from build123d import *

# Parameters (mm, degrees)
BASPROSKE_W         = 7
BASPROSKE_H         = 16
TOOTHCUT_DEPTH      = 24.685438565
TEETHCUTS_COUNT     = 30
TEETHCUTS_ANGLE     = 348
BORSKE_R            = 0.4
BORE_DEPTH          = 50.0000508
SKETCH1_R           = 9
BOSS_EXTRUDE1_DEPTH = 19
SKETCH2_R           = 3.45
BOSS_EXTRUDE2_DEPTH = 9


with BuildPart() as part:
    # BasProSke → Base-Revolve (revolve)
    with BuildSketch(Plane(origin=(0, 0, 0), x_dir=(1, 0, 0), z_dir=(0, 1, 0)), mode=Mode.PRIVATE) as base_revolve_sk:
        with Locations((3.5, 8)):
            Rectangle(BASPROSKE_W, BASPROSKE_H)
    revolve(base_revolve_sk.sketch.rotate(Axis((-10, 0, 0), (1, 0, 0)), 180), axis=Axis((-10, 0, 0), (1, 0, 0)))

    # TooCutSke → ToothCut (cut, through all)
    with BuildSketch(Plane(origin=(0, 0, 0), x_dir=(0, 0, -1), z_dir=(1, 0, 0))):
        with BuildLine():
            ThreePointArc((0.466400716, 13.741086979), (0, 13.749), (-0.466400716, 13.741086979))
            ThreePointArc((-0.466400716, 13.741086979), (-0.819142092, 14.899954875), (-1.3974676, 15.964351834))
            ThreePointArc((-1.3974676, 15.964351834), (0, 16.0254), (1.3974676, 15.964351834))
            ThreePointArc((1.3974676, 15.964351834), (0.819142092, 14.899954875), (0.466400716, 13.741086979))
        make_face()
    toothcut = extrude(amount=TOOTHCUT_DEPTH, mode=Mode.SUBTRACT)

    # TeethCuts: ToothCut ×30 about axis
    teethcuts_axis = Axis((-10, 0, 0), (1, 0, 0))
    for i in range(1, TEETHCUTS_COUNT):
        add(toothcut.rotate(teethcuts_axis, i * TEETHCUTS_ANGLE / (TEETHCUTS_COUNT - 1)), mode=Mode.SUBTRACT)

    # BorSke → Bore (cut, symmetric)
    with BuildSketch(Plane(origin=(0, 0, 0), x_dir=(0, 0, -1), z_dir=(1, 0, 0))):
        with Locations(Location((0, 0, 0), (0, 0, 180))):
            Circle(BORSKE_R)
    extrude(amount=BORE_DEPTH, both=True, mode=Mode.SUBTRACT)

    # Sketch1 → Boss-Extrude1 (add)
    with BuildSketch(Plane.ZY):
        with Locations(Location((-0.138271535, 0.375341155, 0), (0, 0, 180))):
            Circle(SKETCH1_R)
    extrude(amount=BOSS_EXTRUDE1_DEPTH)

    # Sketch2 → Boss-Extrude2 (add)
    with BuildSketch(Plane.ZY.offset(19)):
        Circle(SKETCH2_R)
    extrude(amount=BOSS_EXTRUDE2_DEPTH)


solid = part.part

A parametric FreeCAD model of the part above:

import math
import FreeCAD as App
import Part
import Sketcher


def add_polygon(sketch, points):
    """Adds a closed chain of lines whose ends are joined by coincident constraints."""
    first, n = sketch.GeometryCount, len(points)
    for a, b in zip(points, points[1:] + points[:1]):
        sketch.addGeometry(Part.LineSegment(App.Vector(*a, 0), App.Vector(*b, 0)), False)
    for i in range(n):
        sketch.addConstraint(Sketcher.Constraint("Coincident", first + i, 2, first + (i + 1) % n, 1))

doc = App.newDocument("Part")
body = doc.addObject("PartDesign::Body", "Body")

sketch1 = body.newObject("Sketcher::SketchObject", "Sketch")
sketch1.AttachmentSupport = (doc.getObject("XZ_Plane"), [""])
sketch1.MapMode = "FlatFace"
add_polygon(sketch1, [(0, -16), (0, 0), (7, 0), (7, -16)])
sketch1.addConstraint([
    Sketcher.Constraint("Vertical", 0),
    Sketcher.Constraint("Horizontal", 1),
    Sketcher.Constraint("Vertical", 2),
    Sketcher.Constraint("Horizontal", 3),
    Sketcher.Constraint("Coincident", 0, 2, -1, 1),
    Sketcher.Constraint("DistanceX", 1, 1, 1, 2, 7.0),
    Sketcher.Constraint("DistanceY", 0, 1, 0, 2, 16.0),
])
revolution = body.newObject("PartDesign::Revolution", "Revolution")
revolution.Profile = sketch1
revolution.ReferenceAxis = (sketch1, ["H_Axis"])
revolution.Angle = 360

sketch2 = body.newObject("Sketcher::SketchObject", "Sketch001")
sketch2.AttachmentSupport = (doc.getObject("YZ_Plane"), [""])
sketch2.MapMode = "FlatFace"
sketch2.addGeometry([
    Part.ArcOfCircle(Part.Circle(App.Vector(0, 0, 0), App.Vector(0, 0, 1), 13.749), math.radians(-1.94399), math.radians(1.94399)),
    Part.ArcOfCircle(Part.Circle(App.Vector(12.582284, -6.353435, 0), App.Vector(0, 0, 1), 6), math.radians(55.689458), math.radians(78.864269)),
    Part.ArcOfCircle(Part.Circle(App.Vector(0, 0, 0), App.Vector(0, 0, 1), 16.0254), math.radians(-5.002735), math.radians(5.002735)),
    Part.ArcOfCircle(Part.Circle(App.Vector(12.582284, 6.353435, 0), App.Vector(0, 0, 1), 6), math.radians(-78.864269), math.radians(-55.689458)),
], False)
sketch2.addConstraint([
    Sketcher.Constraint("Coincident", 0, 1, 1, 2),
    Sketcher.Constraint("Coincident", 1, 1, 2, 1),
    Sketcher.Constraint("Coincident", 2, 2, 3, 2),
    Sketcher.Constraint("Coincident", 3, 1, 0, 2),
    Sketcher.Constraint("Coincident", 0, 3, -1, 1),
    Sketcher.Constraint("Coincident", 2, 3, -1, 1),
    Sketcher.Constraint("Equal", 1, 3),
    Sketcher.Constraint("Symmetric", 1, 3, 3, 3, -1),
    Sketcher.Constraint("Radius", 1, 6.0),
    Sketcher.Constraint("Radius", 0, 13.749),
    Sketcher.Constraint("Radius", 2, 16.0254),
    Sketcher.Constraint("DistanceY", 0, 1, -1, 1, 0.466401),
    Sketcher.Constraint("DistanceX", -1, 1, 1, 1, 15.964352),
])
pocket1 = body.newObject("PartDesign::Pocket", "Pocket")
pocket1.Profile = sketch2
pocket1.Type = "ThroughAll"
pocket1.Reversed = True
doc.recompute()

polarpattern = body.newObject("PartDesign::PolarPattern", "PolarPattern")
polarpattern.Originals = [pocket1]
polarpattern.Axis = (doc.getObject("X_Axis"), [""])
polarpattern.Angle = 360
polarpattern.Occurrences = 30
body.Tip = polarpattern

sketch3 = body.newObject("Sketcher::SketchObject", "Sketch002")
sketch3.AttachmentSupport = (doc.getObject("YZ_Plane"), [""])
sketch3.MapMode = "FlatFace"
sketch3.addGeometry(Part.Circle(App.Vector(0, 0, 0), App.Vector(0, 0, 1), 0.4), False)
sketch3.addConstraint([
    Sketcher.Constraint("Coincident", 0, 3, -1, 1),
    Sketcher.Constraint("Diameter", 0, 0.8),
])
pocket2 = body.newObject("PartDesign::Pocket", "Pocket001")
pocket2.Profile = sketch3
pocket2.Length = 100.000102
pocket2.Midplane = True

sketch4 = body.newObject("Sketcher::SketchObject", "Sketch003")
sketch4.AttachmentSupport = (doc.getObject("YZ_Plane"), [""])
sketch4.MapMode = "FlatFace"
sketch4.addGeometry(Part.Circle(App.Vector(0.375341, -0.138272, 0), App.Vector(0, 0, 1), 9), False)
sketch4.addConstraint([
    Sketcher.Constraint("Diameter", 0, 18.0),
    Sketcher.Constraint("DistanceX", -1, 1, 0, 3, 0.375341),
    Sketcher.Constraint("DistanceY", 0, 3, -1, 1, 0.138272),
])
pad1 = body.newObject("PartDesign::Pad", "Pad")
pad1.Profile = sketch4
pad1.Length = 19
pad1.Reversed = True

sketch5 = body.newObject("Sketcher::SketchObject", "Sketch004")
sketch5.AttachmentSupport = (doc.getObject("YZ_Plane"), [""])
sketch5.MapMode = "FlatFace"
sketch5.AttachmentOffset = App.Placement(App.Vector(0, 0, -19), App.Rotation())
sketch5.addGeometry(Part.Circle(App.Vector(0, 0, 0), App.Vector(0, 0, 1), 3.45), False)
sketch5.addConstraint([
    Sketcher.Constraint("Coincident", 0, 3, -1, 1),
    Sketcher.Constraint("Diameter", 0, 6.9),
])
pad2 = body.newObject("PartDesign::Pad", "Pad001")
pad2.Profile = sketch5
pad2.Length = 9
pad2.Reversed = True

doc.recompute()
